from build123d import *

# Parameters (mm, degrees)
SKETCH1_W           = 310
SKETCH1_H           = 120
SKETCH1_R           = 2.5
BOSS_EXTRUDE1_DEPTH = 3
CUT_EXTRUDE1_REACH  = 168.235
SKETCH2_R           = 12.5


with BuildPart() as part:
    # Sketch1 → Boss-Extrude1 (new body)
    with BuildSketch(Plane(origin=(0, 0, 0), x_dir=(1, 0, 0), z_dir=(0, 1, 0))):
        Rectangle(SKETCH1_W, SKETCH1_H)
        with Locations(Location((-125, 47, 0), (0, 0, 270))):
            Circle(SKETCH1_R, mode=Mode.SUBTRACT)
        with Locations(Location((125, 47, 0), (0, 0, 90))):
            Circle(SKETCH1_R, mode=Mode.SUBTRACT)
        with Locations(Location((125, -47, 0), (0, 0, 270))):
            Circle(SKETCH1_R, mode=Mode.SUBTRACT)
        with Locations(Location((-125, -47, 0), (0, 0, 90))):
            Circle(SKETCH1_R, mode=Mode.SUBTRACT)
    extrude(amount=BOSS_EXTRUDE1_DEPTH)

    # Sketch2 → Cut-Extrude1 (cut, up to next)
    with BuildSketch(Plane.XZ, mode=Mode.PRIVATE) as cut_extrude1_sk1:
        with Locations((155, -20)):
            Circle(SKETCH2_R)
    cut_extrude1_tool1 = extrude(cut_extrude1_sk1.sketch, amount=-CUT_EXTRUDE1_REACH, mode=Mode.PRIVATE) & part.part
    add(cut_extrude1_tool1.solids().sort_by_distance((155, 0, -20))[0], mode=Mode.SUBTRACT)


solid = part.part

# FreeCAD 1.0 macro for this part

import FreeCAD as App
import Part
import Sketcher
from FreeCAD import Vector

doc = App.newDocument("Part")
params = doc.addObject("Spreadsheet::Sheet", "Params")
for row, (alias, value) in enumerate([
    ("sketch1_diameter", "5 mm"),
    ("sketch1_width", "310 mm"),
    ("sketch1_height", "120 mm"),
    ("pad1_length", "3 mm"),
    ("sketch2_diameter", "25 mm"),
], start=1):
    params.set(f"A{row}", alias)
    params.set(f"B{row}", "=" + value)
    params.setAlias(f"B{row}", alias)

body = doc.addObject("PartDesign::Body", "Body")

# Sketch on XZ plane
sketch1 = doc.addObject("Sketcher::SketchObject", "Sketch")
body.addObject(sketch1)
sketch1.AttachmentSupport = (doc.XZ_Plane, [""])
sketch1.MapMode = "FlatFace"
sketch1.addGeometry(Part.LineSegment(Vector(-155, -60, 0), Vector(-155, 60, 0)), False)
sketch1.addGeometry(Part.LineSegment(Vector(-155, 60, 0), Vector(155, 60, 0)), False)
sketch1.addGeometry(Part.LineSegment(Vector(155, 60, 0), Vector(155, -60, 0)), False)
sketch1.addGeometry(Part.LineSegment(Vector(155, -60, 0), Vector(-155, -60, 0)), False)
sketch1.addGeometry(Part.Circle(Vector(-125, 47, 0), Vector(0, 0, 1), 2.5), False)
sketch1.addGeometry(Part.Circle(Vector(125, 47, 0), Vector(0, 0, 1), 2.5), False)
sketch1.addGeometry(Part.Circle(Vector(-125, -47, 0), Vector(0, 0, 1), 2.5), False)
sketch1.addGeometry(Part.Circle(Vector(125, -47, 0), Vector(0, 0, 1), 2.5), False)
sketch1.addConstraint(Sketcher.Constraint("Coincident", 0, 2, 1, 1))
sketch1.addConstraint(Sketcher.Constraint("Coincident", 1, 2, 2, 1))
sketch1.addConstraint(Sketcher.Constraint("Coincident", 2, 2, 3, 1))
sketch1.addConstraint(Sketcher.Constraint("Coincident", 3, 2, 0, 1))
sketch1.addConstraint(Sketcher.Constraint("Vertical", 0))
sketch1.addConstraint(Sketcher.Constraint("Horizontal", 1))
sketch1.addConstraint(Sketcher.Constraint("Vertical", 2))
sketch1.addConstraint(Sketcher.Constraint("Horizontal", 3))
sketch1.addConstraint(Sketcher.Constraint("Equal", 4, 5))
sketch1.addConstraint(Sketcher.Constraint("Equal", 5, 6))
sketch1.addConstraint(Sketcher.Constraint("Equal", 6, 7))
sketch1.addConstraint(Sketcher.Constraint("Symmetric", 5, 3, 6, 3, -1, 1))
sketch1.addConstraint(Sketcher.Constraint("Symmetric", 4, 3, 7, 3, -1, 1))
sketch1.addConstraint(Sketcher.Constraint("Symmetric", 0, 2, 2, 2, -1, 1))
sketch1.addConstraint(Sketcher.Constraint("Symmetric", 4, 3, 5, 3, -2))
sketch1.addConstraint(Sketcher.Constraint("Diameter", 4, 5.0))
sketch1.addConstraint(Sketcher.Constraint("DistanceX", 1, 1, 1, 2, 310.0))
sketch1.addConstraint(Sketcher.Constraint("DistanceY", 0, 1, 0, 2, 120.0))
sketch1.addConstraint(Sketcher.Constraint("DistanceX", 4, 3, -1, 1, 125.0))
sketch1.addConstraint(Sketcher.Constraint("DistanceY", -1, 1, 4, 3, 47.0))
sketch1.setExpression("Constraints[15]", "Params.sketch1_diameter")
sketch1.setExpression("Constraints[16]", "Params.sketch1_width")
sketch1.setExpression("Constraints[17]", "Params.sketch1_height")
pad1 = doc.addObject("PartDesign::Pad", "Pad")
body.addObject(pad1)
pad1.Profile = sketch1
pad1.setExpression("Length", "Params.pad1_length")
pad1.Reversed = True

# Sketch on XZ plane
sketch2 = doc.addObject("Sketcher::SketchObject", "Sketch001")
body.addObject(sketch2)
sketch2.AttachmentSupport = (doc.XZ_Plane, [""])
sketch2.MapMode = "FlatFace"
sketch2.addGeometry(Part.Circle(Vector(155, -20, 0), Vector(0, 0, 1), 12.5), False)
sketch2.addConstraint(Sketcher.Constraint("Diameter", 0, 25.0))
sketch2.addConstraint(Sketcher.Constraint("DistanceX", -1, 1, 0, 3, 155.0))
sketch2.addConstraint(Sketcher.Constraint("DistanceY", 0, 3, -1, 1, 20.0))
sketch2.setExpression("Constraints[0]", "Params.sketch2_diameter")
pocket1 = doc.addObject("PartDesign::Pocket", "Pocket")
body.addObject(pocket1)
pocket1.Profile = sketch2
pocket1.Type = "UpToFirst"

doc.recompute()
